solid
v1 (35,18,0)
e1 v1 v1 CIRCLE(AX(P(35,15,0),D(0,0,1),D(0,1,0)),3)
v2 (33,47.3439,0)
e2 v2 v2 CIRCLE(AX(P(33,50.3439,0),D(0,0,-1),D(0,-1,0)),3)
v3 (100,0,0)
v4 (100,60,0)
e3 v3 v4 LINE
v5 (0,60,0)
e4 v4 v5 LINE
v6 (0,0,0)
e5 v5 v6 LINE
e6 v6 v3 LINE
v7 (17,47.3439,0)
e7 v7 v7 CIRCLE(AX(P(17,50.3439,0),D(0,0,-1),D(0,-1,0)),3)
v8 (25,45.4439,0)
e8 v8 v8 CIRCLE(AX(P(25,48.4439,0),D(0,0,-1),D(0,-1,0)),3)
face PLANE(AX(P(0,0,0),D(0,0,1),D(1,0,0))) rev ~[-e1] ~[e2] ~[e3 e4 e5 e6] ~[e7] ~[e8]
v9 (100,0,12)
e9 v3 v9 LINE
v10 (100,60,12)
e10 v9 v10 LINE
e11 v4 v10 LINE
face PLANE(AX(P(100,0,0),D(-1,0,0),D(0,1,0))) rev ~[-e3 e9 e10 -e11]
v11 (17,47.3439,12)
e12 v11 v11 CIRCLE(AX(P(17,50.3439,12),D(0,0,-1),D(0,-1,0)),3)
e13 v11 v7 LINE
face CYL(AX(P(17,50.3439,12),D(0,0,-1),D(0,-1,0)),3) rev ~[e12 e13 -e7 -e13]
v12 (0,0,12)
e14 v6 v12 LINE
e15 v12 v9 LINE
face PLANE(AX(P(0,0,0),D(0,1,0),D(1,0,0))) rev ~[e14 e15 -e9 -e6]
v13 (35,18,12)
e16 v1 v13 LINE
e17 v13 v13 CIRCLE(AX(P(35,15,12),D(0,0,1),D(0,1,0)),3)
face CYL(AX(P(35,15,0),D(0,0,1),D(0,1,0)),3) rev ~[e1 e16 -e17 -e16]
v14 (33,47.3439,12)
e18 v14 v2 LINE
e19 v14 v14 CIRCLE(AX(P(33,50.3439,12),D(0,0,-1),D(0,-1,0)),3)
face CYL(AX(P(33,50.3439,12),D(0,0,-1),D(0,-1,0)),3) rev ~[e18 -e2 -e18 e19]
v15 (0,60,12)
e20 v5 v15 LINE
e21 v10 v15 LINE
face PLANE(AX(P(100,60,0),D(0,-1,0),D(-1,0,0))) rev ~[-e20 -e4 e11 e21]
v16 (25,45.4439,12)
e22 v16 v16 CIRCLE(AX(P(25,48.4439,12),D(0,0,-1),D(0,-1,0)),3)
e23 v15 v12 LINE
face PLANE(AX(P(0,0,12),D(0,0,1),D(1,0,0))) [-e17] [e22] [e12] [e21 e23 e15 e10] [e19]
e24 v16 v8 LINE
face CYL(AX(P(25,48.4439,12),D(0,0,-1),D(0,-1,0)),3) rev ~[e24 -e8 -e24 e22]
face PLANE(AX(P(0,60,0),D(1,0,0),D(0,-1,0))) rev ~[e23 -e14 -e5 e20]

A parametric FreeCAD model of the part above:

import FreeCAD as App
import Part
import Sketcher
Q = App.Units.Quantity

doc = App.newDocument("Part")
params = doc.addObject("Spreadsheet::Sheet", "Params")
for row, (alias, value) in enumerate([
    ("sketch1_width", "100 mm"),
    ("sketch1_height", "60 mm"),
    ("pad1_length", "12 mm"),
    ("sketch2_diameter", "6 mm"),
    ("hole_diameter", "6 mm"),
    ("sketch3_diameter", "6 mm"),
    ("hole2_diameter", "6 mm"),
    ("sketch4_diameter", "6 mm"),
    ("hole3_diameter", "6 mm"),
], start=1):
    params.set(f"A{row}", alias)
    params.set(f"B{row}", "=" + value)
    params.setAlias(f"B{row}", alias)

body = doc.addObject("PartDesign::Body", "Body")

sketch1 = doc.addObject("Sketcher::SketchObject", "Sketch")
body.addObject(sketch1)
sketch1.AttachmentSupport = (doc.XY_Plane, [""])
sketch1.MapMode = "FlatFace"
sketch1.addGeometry([
    Part.LineSegment(App.Vector(0, 60, 0), App.Vector(0, 0, 0)),
    Part.LineSegment(App.Vector(0, 0, 0), App.Vector(100, 0, 0)),
    Part.LineSegment(App.Vector(100, 0, 0), App.Vector(100, 60, 0)),
    Part.LineSegment(App.Vector(100, 60, 0), App.Vector(0, 60, 0)),
], False)
sketch1.addConstraint([
    Sketcher.Constraint("Coincident", 0, 2, 1, 1),
    Sketcher.Constraint("Coincident", 1, 2, 2, 1),
    Sketcher.Constraint("Coincident", 2, 2, 3, 1),
    Sketcher.Constraint("Coincident", 3, 2, 0, 1),
    Sketcher.Constraint("Vertical", 0),
    Sketcher.Constraint("Horizontal", 1),
    Sketcher.Constraint("Vertical", 2),
    Sketcher.Constraint("Horizontal", 3),
    Sketcher.Constraint("Coincident", 0, 2, -1, 1),
    Sketcher.Constraint("DistanceX", 1, 1, 1, 2, Q("100 mm")),
    Sketcher.Constraint("DistanceY", 0, 2, 0, 1, Q("60 mm")),
])
sketch1.setExpression("Constraints[9]", "Params.sketch1_width")
sketch1.setExpression("Constraints[10]", "Params.sketch1_height")
pad1 = doc.addObject("PartDesign::Pad", "Pad")
body.addObject(pad1)
pad1.Profile = sketch1
pad1.setExpression("Length", "Params.pad1_length")

sketch2 = doc.addObject("Sketcher::SketchObject", "Sketch001")
body.addObject(sketch2)
sketch2.AttachmentSupport = (doc.XY_Plane, [""])
sketch2.MapMode = "FlatFace"
sketch2.AttachmentOffset = App.Placement(App.Vector(0, 0, 12), App.Rotation())
sketch2.addGeometry([
    Part.Circle(App.Vector(17, 50.3, 0), App.Vector(0, 0, 1), 3),
    Part.Circle(App.Vector(33, 50.3, 0), App.Vector(0, 0, 1), 3),
], False)
sketch2.addConstraint([
    Sketcher.Constraint("Equal", 0, 1),
    Sketcher.Constraint("Horizontal", 0, 3, 1, 3),
    Sketcher.Constraint("Diameter", 0, Q("6 mm")),
    Sketcher.Constraint("DistanceX", -1, 1, 0, 3, Q("17 mm")),
    Sketcher.Constraint("DistanceX", -1, 1, 1, 3, Q("33 mm")),
    Sketcher.Constraint("DistanceY", -1, 1, 0, 3, Q("50.344 mm")),
])
sketch2.setExpression("Constraints[2]", "Params.sketch2_diameter")
doc.recompute()
hole = doc.addObject("PartDesign::Hole", "Hole")
body.addObject(hole)
hole.Profile = sketch2
hole.ThreadType = "None"
hole.setExpression("Diameter", "Params.hole_diameter")
hole.DepthType = "ThroughAll"

sketch3 = doc.addObject("Sketcher::SketchObject", "Sketch002")
body.addObject(sketch3)
sketch3.AttachmentSupport = (doc.XY_Plane, [""])
sketch3.MapMode = "FlatFace"
sketch3.AttachmentOffset = App.Placement(App.Vector(0, 0, 12), App.Rotation())
sketch3.addGeometry(Part.Circle(App.Vector(25, 48.4, 0), App.Vector(0, 0, 1), 3), False)
sketch3.addConstraint([
    Sketcher.Constraint("Diameter", 0, Q("6 mm")),
    Sketcher.Constraint("DistanceX", -1, 1, 0, 3, Q("25 mm")),
    Sketcher.Constraint("DistanceY", -1, 1, 0, 3, Q("48.444 mm")),
])
sketch3.setExpression("Constraints[0]", "Params.sketch3_diameter")
doc.recompute()
hole2 = doc.addObject("PartDesign::Hole", "Hole001")
body.addObject(hole2)
hole2.Profile = sketch3
hole2.ThreadType = "None"
hole2.setExpression("Diameter", "Params.hole2_diameter")
hole2.DepthType = "ThroughAll"

sketch4 = doc.addObject("Sketcher::SketchObject", "Sketch003")
body.addObject(sketch4)
sketch4.AttachmentSupport = (doc.XY_Plane, [""])
sketch4.MapMode = "FlatFace"
sketch4.addGeometry(Part.Circle(App.Vector(35, 15, 0), App.Vector(0, 0, 1), 3), False)
sketch4.addConstraint([
    Sketcher.Constraint("Diameter", 0, Q("6 mm")),
    Sketcher.Constraint("DistanceX", -1, 1, 0, 3, Q("35 mm")),
    Sketcher.Constraint("DistanceY", -1, 1, 0, 3, Q("15 mm")),
])
sketch4.setExpression("Constraints[0]", "Params.sketch4_diameter")
doc.recompute()
hole3 = doc.addObject("PartDesign::Hole", "Hole002")
body.addObject(hole3)
hole3.Profile = sketch4
hole3.ThreadType = "None"
hole3.setExpression("Diameter", "Params.hole3_diameter")
hole3.DepthType = "ThroughAll"
hole3.Reversed = True

doc.recompute()
